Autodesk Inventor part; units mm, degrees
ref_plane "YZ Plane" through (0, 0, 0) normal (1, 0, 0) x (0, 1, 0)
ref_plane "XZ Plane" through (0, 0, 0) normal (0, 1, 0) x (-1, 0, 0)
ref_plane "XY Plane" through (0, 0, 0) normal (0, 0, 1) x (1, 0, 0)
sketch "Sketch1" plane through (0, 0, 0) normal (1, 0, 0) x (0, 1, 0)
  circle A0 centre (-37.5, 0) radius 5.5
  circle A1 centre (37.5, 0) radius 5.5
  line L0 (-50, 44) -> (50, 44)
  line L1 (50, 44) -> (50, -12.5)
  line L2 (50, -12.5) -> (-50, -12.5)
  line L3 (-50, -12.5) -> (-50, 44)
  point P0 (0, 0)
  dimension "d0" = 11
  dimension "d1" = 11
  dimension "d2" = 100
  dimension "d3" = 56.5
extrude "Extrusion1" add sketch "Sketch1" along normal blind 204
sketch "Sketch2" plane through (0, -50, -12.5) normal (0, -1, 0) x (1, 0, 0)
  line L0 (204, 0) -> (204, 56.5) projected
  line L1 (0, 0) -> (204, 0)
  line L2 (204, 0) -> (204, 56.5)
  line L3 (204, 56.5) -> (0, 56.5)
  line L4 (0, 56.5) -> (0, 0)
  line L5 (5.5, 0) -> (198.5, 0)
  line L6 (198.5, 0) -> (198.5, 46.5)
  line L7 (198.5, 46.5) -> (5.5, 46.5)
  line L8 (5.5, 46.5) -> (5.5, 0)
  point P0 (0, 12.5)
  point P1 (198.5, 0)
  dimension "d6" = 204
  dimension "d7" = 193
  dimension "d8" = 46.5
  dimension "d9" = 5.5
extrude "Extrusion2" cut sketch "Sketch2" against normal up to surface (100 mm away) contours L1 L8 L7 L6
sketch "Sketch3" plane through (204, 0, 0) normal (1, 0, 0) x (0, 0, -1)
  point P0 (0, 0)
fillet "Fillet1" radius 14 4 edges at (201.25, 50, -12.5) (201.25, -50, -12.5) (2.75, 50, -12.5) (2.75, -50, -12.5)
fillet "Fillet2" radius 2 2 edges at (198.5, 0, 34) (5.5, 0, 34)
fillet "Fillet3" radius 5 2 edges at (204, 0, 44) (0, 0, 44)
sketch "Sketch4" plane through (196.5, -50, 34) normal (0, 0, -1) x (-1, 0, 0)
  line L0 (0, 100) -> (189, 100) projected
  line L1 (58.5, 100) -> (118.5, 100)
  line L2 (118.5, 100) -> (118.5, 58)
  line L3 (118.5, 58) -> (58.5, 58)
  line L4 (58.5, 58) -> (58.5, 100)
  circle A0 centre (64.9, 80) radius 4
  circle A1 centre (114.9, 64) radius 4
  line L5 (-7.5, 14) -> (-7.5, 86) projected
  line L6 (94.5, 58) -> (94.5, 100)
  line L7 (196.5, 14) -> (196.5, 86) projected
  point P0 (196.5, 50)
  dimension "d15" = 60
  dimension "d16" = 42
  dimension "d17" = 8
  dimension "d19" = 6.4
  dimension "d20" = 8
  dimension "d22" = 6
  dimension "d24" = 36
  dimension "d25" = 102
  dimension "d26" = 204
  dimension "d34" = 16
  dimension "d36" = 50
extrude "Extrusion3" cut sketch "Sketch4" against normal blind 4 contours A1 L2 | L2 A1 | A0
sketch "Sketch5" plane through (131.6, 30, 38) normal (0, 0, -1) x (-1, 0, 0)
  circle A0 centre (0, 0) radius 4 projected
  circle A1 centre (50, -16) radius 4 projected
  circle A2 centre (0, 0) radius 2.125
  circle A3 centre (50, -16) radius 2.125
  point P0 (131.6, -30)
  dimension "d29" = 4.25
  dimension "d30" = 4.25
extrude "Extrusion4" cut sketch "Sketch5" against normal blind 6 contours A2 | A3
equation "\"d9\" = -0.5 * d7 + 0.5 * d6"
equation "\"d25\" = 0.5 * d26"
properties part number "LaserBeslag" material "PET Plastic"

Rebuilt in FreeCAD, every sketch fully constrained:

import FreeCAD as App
import Part
import Sketcher
from FreeCAD import Vector
Q = App.Units.Quantity


def edges_at(feature, points):
    """Names of the edges that pass closest to the given points."""
    edges = feature.Shape.Edges
    near = lambda p: min(range(len(edges)), key=lambda i: edges[i].distToShape(Part.Vertex(*p))[0])
    return sorted({f"Edge{near(p) + 1}" for p in points})


def add_polygon(sketch, points):
    """Adds a closed chain of lines whose ends are joined by coincident constraints."""
    first, n = sketch.GeometryCount, len(points)
    for a, b in zip(points, points[1:] + points[:1]):
        sketch.addGeometry(Part.LineSegment(App.Vector(*a, 0), App.Vector(*b, 0)), False)
    for i in range(n):
        sketch.addConstraint(Sketcher.Constraint("Coincident", first + i, 2, first + (i + 1) % n, 1))

doc = App.newDocument("Part")
body = doc.addObject("PartDesign::Body", "Body")

# Sketch on YZ plane
sketch1 = body.newObject("Sketcher::SketchObject", "Sketch")
sketch1.AttachmentSupport = (doc.getObject("YZ_Plane"), [""])
sketch1.MapMode = "FlatFace"
add_polygon(sketch1, [(50, 44), (-50, 44), (-50, -12), (50, -12)])  # lines 0-3
sketch1.addGeometry(Part.Circle(Vector(-38, 0, 0), Vector(0, 0, 1), 6), False)  # 4
sketch1.addGeometry(Part.Circle(Vector(38, 0, 0), Vector(0, 0, 1), 6), False)  # 5
sketch1.addConstraint([
    Sketcher.Constraint("Horizontal", 0),
    Sketcher.Constraint("Vertical", 1),
    Sketcher.Constraint("Horizontal", 2),
    Sketcher.Constraint("Vertical", 3),
    Sketcher.Constraint("Equal", 4, 5),
    Sketcher.Constraint("Symmetric", 4, 3, 5, 3, -1, 1),
    Sketcher.Constraint("PointOnObject", 4, 3, -1),
    Sketcher.Constraint("Diameter", 4, Q("11 mm")),
    Sketcher.Constraint("DistanceX", 0, 2, 0, 1, Q("100 mm")),
    Sketcher.Constraint("DistanceY", 1, 2, 1, 1, Q("56.5 mm")),
    Sketcher.Constraint("DistanceX", 0, 2, -1, 1, Q("50 mm")),
    Sketcher.Constraint("DistanceY", -1, 1, 0, 2, Q("44 mm")),
    Sketcher.Constraint("DistanceX", 4, 3, 5, 3, Q("75 mm")),
])
pad1 = body.newObject("PartDesign::Pad", "Pad")
pad1.Profile = sketch1
pad1.Length = 204

# Sketch on XZ plane
sketch2 = body.newObject("Sketcher::SketchObject", "Sketch001")
sketch2.AttachmentSupport = (doc.getObject("XZ_Plane"), [""])
sketch2.MapMode = "FlatFace"
sketch2.AttachmentOffset = App.Placement(Vector(0, 0, 50), App.Rotation())
add_polygon(sketch2, [(6, -12), (198, -12), (198, 34), (6, 34)])  # lines 0-3
sketch2.addConstraint([
    Sketcher.Constraint("Horizontal", 0),
    Sketcher.Constraint("Vertical", 1),
    Sketcher.Constraint("Horizontal", 2),
    Sketcher.Constraint("Vertical", 3),
    Sketcher.Constraint("DistanceX", 0, 1, 0, 2, Q("193 mm")),
    Sketcher.Constraint("DistanceY", 1, 1, 1, 2, Q("46.5 mm")),
    Sketcher.Constraint("DistanceX", -1, 1, 2, 2, Q("5.5 mm")),
    Sketcher.Constraint("DistanceY", -1, 1, 1, 2, Q("34 mm")),
])
pocket1 = body.newObject("PartDesign::Pocket", "Pocket")
pocket1.Profile = sketch2
pocket1.Length = 100
doc.recompute()

fillet = body.newObject("PartDesign::Fillet", "Fillet")
fillet.Base = (pocket1, edges_at(pocket1, [
    (201.25, 50, -12.5),
    (201.25, -50, -12.5),
    (2.75, 50, -12.5),
    (2.75, -50, -12.5),
]))
fillet.Radius = 14
doc.recompute()

fillet2 = body.newObject("PartDesign::Fillet", "Fillet001")
fillet2.Base = (fillet, edges_at(fillet, [(198.5, 0, 34), (5.5, 0, 34)]))
fillet2.Radius = 2
doc.recompute()

fillet3 = body.newObject("PartDesign::Fillet", "Fillet002")
fillet3.Base = (fillet2, edges_at(fillet2, [(204, 0, 44), (0, 0, 44)]))
fillet3.Radius = 5

# Sketch on XY plane
sketch3 = body.newObject("Sketcher::SketchObject", "Sketch002")
sketch3.AttachmentSupport = (doc.getObject("XY_Plane"), [""])
sketch3.MapMode = "FlatFace"
sketch3.AttachmentOffset = App.Placement(Vector(0, 0, 34), App.Rotation())
sketch3.addGeometry([
    Part.Circle(Vector(81.6, 14, 0), Vector(0, 0, 1), 4),
    Part.Circle(Vector(131.6, 30, 0), Vector(0, 0, 1), 4),
], False)
sketch3.addConstraint([
    Sketcher.Constraint("Equal", 0, 1),
    Sketcher.Constraint("Diameter", 0, Q("8 mm")),
    Sketcher.Constraint("DistanceX", 0, 3, 1, 3, Q("50 mm")),
    Sketcher.Constraint("DistanceY", 0, 3, 1, 3, Q("16 mm")),
    Sketcher.Constraint("DistanceY", -1, 1, 0, 3, Q("14 mm")),
    Sketcher.Constraint("DistanceX", -1, 1, 0, 3, Q("81.6 mm")),
])
pocket2 = body.newObject("PartDesign::Pocket", "Pocket001")
pocket2.Profile = sketch3
pocket2.Length = 4
pocket2.Reversed = True

# Sketch on XY plane
sketch4 = body.newObject("Sketcher::SketchObject", "Sketch003")
sketch4.AttachmentSupport = (doc.getObject("XY_Plane"), [""])
sketch4.MapMode = "FlatFace"
sketch4.AttachmentOffset = App.Placement(Vector(0, 0, 38), App.Rotation())
sketch4.addGeometry([
    Part.Circle(Vector(131.6, 30, 0), Vector(0, 0, 1), 2.1),
    Part.Circle(Vector(81.6, 14, 0), Vector(0, 0, 1), 2.1),
], False)
sketch4.addConstraint([
    Sketcher.Constraint("Equal", 0, 1),
    Sketcher.Constraint("Diameter", 0, Q("4.25 mm")),
    Sketcher.Constraint("DistanceY", -1, 1, 0, 3, Q("30 mm")),
    Sketcher.Constraint("DistanceY", -1, 1, 1, 3, Q("14 mm")),
    Sketcher.Constraint("DistanceX", 1, 3, 0, 3, Q("50 mm")),
    Sketcher.Constraint("DistanceX", -1, 1, 0, 3, Q("131.6 mm")),
])
pocket3 = body.newObject("PartDesign::Pocket", "Pocket002")
pocket3.Profile = sketch4
pocket3.Length = 6
pocket3.Reversed = True

doc.recompute()
